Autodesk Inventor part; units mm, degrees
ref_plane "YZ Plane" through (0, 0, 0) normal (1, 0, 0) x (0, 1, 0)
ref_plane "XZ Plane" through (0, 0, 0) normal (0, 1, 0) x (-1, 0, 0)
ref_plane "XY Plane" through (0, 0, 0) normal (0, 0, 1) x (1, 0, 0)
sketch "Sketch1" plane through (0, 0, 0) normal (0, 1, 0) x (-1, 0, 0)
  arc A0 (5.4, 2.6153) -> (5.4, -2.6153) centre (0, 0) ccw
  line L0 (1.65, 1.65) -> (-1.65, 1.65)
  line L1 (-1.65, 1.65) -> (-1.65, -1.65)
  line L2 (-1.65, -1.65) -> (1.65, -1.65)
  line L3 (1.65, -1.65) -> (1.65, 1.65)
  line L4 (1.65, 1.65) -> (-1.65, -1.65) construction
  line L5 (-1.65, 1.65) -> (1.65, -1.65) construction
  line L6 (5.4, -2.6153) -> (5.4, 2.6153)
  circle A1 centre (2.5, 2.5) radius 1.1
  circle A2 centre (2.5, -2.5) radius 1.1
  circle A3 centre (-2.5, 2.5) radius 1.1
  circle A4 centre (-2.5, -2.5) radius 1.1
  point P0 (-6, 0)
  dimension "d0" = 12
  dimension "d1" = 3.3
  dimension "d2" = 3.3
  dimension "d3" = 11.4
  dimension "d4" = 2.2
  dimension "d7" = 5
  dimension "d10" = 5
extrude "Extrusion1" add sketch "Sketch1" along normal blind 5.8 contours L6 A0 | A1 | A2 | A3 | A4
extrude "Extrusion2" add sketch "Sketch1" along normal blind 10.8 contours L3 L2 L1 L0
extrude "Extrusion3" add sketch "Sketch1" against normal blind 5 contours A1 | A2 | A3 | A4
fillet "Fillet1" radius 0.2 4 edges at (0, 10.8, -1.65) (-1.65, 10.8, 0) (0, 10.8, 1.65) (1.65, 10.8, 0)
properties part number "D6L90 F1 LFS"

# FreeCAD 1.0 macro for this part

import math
import FreeCAD as App
import Part
import Sketcher

V = App.Vector
Q = App.Units.Quantity


def edges_at(feature, points):
    """Names of the edges that pass closest to the given points."""
    edges = feature.Shape.Edges
    near = lambda p: min(range(len(edges)), key=lambda i: edges[i].distToShape(Part.Vertex(*p))[0])
    return sorted({f"Edge{near(p) + 1}" for p in points})

doc = App.newDocument("Part")
params = doc.addObject("Spreadsheet::Sheet", "Params")
for row, (alias, value) in enumerate([
    ("sketch1_radius", "6 mm"),
    ("sketch1_width", "3.3 mm"),
    ("pad1_length", "5.8 mm"),
    ("sketch2_width", "3.3 mm"),
    ("pad2_length", "10.8 mm"),
    ("sketch3_diameter", "2.2 mm"),
    ("pad3_length", "5 mm"),
    ("fillet_radius", "0.2 mm"),
], start=1):
    params.set(f"A{row}", alias)
    params.set(f"B{row}", "=" + value)
    params.setAlias(f"B{row}", alias)

body = doc.addObject("PartDesign::Body", "Body")

sketch1 = doc.addObject("Sketcher::SketchObject", "Sketch")
body.addObject(sketch1)
sketch1.AttachmentSupport = (doc.XZ_Plane, [""])
sketch1.MapMode = "FlatFace"
sketch1.addGeometry(Part.LineSegment(V(-5.4, -2.6, 0), V(-5.4, 2.6, 0)), False)
sketch1.addGeometry(Part.ArcOfCircle(Part.Circle(V(0, 0, 0), V(0, 0, 1), 6), math.radians(-154), math.radians(154)), False)
sketch1.addGeometry(Part.LineSegment(V(1.6, 1.6, 0), V(-1.6, 1.6, 0)), False)
sketch1.addGeometry(Part.LineSegment(V(-1.6, 1.6, 0), V(-1.6, -1.6, 0)), False)
sketch1.addGeometry(Part.LineSegment(V(-1.6, -1.6, 0), V(1.6, -1.6, 0)), False)
sketch1.addGeometry(Part.LineSegment(V(1.6, -1.6, 0), V(1.6, 1.6, 0)), False)
sketch1.addConstraint(Sketcher.Constraint("Coincident", 0, 1, 1, 1))
sketch1.addConstraint(Sketcher.Constraint("Coincident", 1, 2, 0, 2))
sketch1.addConstraint(Sketcher.Constraint("Coincident", 2, 2, 3, 1))
sketch1.addConstraint(Sketcher.Constraint("Coincident", 3, 2, 4, 1))
sketch1.addConstraint(Sketcher.Constraint("Coincident", 4, 2, 5, 1))
sketch1.addConstraint(Sketcher.Constraint("Coincident", 5, 2, 2, 1))
sketch1.addConstraint(Sketcher.Constraint("Vertical", 0))
sketch1.addConstraint(Sketcher.Constraint("Horizontal", 2))
sketch1.addConstraint(Sketcher.Constraint("Vertical", 3))
sketch1.addConstraint(Sketcher.Constraint("Horizontal", 4))
sketch1.addConstraint(Sketcher.Constraint("Vertical", 5))
sketch1.addConstraint(Sketcher.Constraint("Coincident", 1, 3, -1, 1))
sketch1.addConstraint(Sketcher.Constraint("Symmetric", 2, 2, 4, 2, -1, 1))
sketch1.addConstraint(Sketcher.Constraint("Equal", 4, 3))
sketch1.addConstraint(Sketcher.Constraint("Radius", 1, Q("6 mm")))
sketch1.addConstraint(Sketcher.Constraint("DistanceX", 2, 2, 2, 1, Q("3.3 mm")))
sketch1.addConstraint(Sketcher.Constraint("DistanceX", 0, 1, -1, 1, Q("5.4 mm")))
sketch1.setExpression("Constraints[14]", "Params.sketch1_radius")
sketch1.setExpression("Constraints[15]", "Params.sketch1_width")
pad1 = doc.addObject("PartDesign::Pad", "Pad")
body.addObject(pad1)
pad1.Profile = sketch1
pad1.setExpression("Length", "Params.pad1_length")
pad1.Reversed = True

sketch2 = doc.addObject("Sketcher::SketchObject", "Sketch001")
body.addObject(sketch2)
sketch2.AttachmentSupport = (doc.XZ_Plane, [""])
sketch2.MapMode = "FlatFace"
sketch2.addGeometry(Part.LineSegment(V(-1.6, -1.6, 0), V(-1.6, 1.6, 0)), False)
sketch2.addGeometry(Part.LineSegment(V(-1.6, 1.6, 0), V(1.6, 1.6, 0)), False)
sketch2.addGeometry(Part.LineSegment(V(1.6, 1.6, 0), V(1.6, -1.6, 0)), False)
sketch2.addGeometry(Part.LineSegment(V(1.6, -1.6, 0), V(-1.6, -1.6, 0)), False)
sketch2.addConstraint(Sketcher.Constraint("Coincident", 0, 2, 1, 1))
sketch2.addConstraint(Sketcher.Constraint("Coincident", 1, 2, 2, 1))
sketch2.addConstraint(Sketcher.Constraint("Coincident", 2, 2, 3, 1))
sketch2.addConstraint(Sketcher.Constraint("Coincident", 3, 2, 0, 1))
sketch2.addConstraint(Sketcher.Constraint("Vertical", 0))
sketch2.addConstraint(Sketcher.Constraint("Horizontal", 1))
sketch2.addConstraint(Sketcher.Constraint("Vertical", 2))
sketch2.addConstraint(Sketcher.Constraint("Horizontal", 3))
sketch2.addConstraint(Sketcher.Constraint("Symmetric", 0, 2, 2, 2, -1, 1))
sketch2.addConstraint(Sketcher.Constraint("Equal", 3, 0))
sketch2.addConstraint(Sketcher.Constraint("DistanceX", 1, 1, 1, 2, Q("3.3 mm")))
sketch2.setExpression("Constraints[10]", "Params.sketch2_width")
pad2 = doc.addObject("PartDesign::Pad", "Pad001")
body.addObject(pad2)
pad2.Profile = sketch2
pad2.setExpression("Length", "Params.pad2_length")
pad2.Reversed = True

sketch3 = doc.addObject("Sketcher::SketchObject", "Sketch002")
body.addObject(sketch3)
sketch3.AttachmentSupport = (doc.XZ_Plane, [""])
sketch3.MapMode = "FlatFace"
sketch3.addGeometry(Part.Circle(V(-2.5, 2.5, 0), V(0, 0, 1), 1.1), False)
sketch3.addGeometry(Part.Circle(V(-2.5, -2.5, 0), V(0, 0, 1), 1.1), False)
sketch3.addGeometry(Part.Circle(V(2.5, 2.5, 0), V(0, 0, 1), 1.1), False)
sketch3.addGeometry(Part.Circle(V(2.5, -2.5, 0), V(0, 0, 1), 1.1), False)
sketch3.addConstraint(Sketcher.Constraint("Equal", 0, 1))
sketch3.addConstraint(Sketcher.Constraint("Equal", 1, 2))
sketch3.addConstraint(Sketcher.Constraint("Equal", 2, 3))
sketch3.addConstraint(Sketcher.Constraint("Symmetric", 1, 3, 2, 3, -1, 1))
sketch3.addConstraint(Sketcher.Constraint("Symmetric", 0, 3, 3, 3, -1, 1))
sketch3.addConstraint(Sketcher.Constraint("Symmetric", 0, 3, 2, 3, -2))
sketch3.addConstraint(Sketcher.Constraint("Diameter", 0, Q("2.2 mm")))
sketch3.addConstraint(Sketcher.Constraint("DistanceY", 1, 3, 0, 3, Q("5 mm")))
sketch3.addConstraint(Sketcher.Constraint("DistanceX", 0, 3, 2, 3, Q("5 mm")))
sketch3.setExpression("Constraints[6]", "Params.sketch3_diameter")
pad3 = doc.addObject("PartDesign::Pad", "Pad002")
body.addObject(pad3)
pad3.Profile = sketch3
pad3.setExpression("Length", "Params.pad3_length")
doc.recompute()

fillet = doc.addObject("PartDesign::Fillet", "Fillet")
body.addObject(fillet)
fillet.Base = (pad3, edges_at(pad3, [
    (0, 10.8, -1.65),
    (-1.65, 10.8, 0),
    (0, 10.8, 1.65),
    (1.65, 10.8, 0),
]))
fillet.setExpression("Radius", "Params.fillet_radius")

doc.recompute()
